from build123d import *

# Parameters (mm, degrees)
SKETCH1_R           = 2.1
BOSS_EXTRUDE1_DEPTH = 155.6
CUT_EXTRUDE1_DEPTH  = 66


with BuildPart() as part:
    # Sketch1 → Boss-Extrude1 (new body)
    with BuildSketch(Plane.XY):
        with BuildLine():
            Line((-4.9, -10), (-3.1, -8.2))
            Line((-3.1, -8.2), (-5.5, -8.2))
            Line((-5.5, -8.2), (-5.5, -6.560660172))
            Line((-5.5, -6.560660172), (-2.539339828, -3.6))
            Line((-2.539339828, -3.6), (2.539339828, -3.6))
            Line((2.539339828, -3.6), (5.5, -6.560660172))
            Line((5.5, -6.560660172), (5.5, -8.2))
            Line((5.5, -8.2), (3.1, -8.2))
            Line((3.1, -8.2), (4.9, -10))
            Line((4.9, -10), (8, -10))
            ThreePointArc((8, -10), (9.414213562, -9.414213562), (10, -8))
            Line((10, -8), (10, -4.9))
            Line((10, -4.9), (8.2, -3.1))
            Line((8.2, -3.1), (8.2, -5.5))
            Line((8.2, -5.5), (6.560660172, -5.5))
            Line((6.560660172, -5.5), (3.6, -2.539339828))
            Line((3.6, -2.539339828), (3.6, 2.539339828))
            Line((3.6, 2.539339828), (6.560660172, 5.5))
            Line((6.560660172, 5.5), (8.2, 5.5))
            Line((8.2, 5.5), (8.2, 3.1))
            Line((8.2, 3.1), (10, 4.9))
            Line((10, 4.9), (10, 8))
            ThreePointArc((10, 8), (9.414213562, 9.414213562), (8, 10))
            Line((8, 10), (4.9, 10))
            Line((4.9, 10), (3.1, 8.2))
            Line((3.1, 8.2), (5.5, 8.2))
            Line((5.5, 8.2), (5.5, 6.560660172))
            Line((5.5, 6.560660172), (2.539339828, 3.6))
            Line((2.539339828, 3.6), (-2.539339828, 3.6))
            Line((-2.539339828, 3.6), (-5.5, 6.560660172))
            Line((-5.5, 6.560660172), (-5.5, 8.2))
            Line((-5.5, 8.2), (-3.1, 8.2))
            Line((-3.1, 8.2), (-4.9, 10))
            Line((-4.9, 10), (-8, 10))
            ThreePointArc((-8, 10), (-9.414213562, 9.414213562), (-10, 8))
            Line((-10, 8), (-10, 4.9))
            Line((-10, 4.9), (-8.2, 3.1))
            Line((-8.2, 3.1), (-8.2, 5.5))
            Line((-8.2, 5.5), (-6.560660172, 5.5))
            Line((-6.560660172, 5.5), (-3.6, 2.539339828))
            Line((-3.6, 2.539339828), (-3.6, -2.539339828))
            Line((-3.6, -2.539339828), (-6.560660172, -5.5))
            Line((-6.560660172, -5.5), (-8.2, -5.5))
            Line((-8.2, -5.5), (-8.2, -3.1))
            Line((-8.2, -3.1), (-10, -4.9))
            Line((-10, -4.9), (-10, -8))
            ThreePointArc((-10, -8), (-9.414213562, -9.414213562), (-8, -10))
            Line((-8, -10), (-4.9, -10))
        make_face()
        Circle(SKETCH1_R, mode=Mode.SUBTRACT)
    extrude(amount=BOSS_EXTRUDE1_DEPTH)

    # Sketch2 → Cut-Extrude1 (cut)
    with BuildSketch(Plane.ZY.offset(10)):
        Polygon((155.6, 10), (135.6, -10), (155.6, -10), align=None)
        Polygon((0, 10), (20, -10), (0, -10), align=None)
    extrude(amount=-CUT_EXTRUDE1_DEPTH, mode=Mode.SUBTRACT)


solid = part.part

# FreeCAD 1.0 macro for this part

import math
import FreeCAD as App
import Part
import Sketcher

V = App.Vector

doc = App.newDocument("Part")
body = doc.addObject("PartDesign::Body", "Body")

# Sketch on XY plane
sketch1 = body.newObject("Sketcher::SketchObject", "Sketch")
sketch1.AttachmentSupport = (doc.getObject("XY_Plane"), [""])
sketch1.MapMode = "FlatFace"
sketch1.addGeometry([
    Part.LineSegment(V(-4.9, -10, 0), V(-3.1, -8.2, 0)),  # 0
    Part.LineSegment(V(-3.1, -8.2, 0), V(-5.5, -8.2, 0)),  # 1
    Part.LineSegment(V(-5.5, -8.2, 0), V(-5.5, -6.56066, 0)),  # 2
    Part.LineSegment(V(-5.5, -6.56066, 0), V(-2.53934, -3.6, 0)),  # 3
    Part.LineSegment(V(-2.53934, -3.6, 0), V(2.53934, -3.6, 0)),  # 4
    Part.LineSegment(V(2.53934, -3.6, 0), V(5.5, -6.56066, 0)),  # 5
    Part.LineSegment(V(5.5, -6.56066, 0), V(5.5, -8.2, 0)),  # 6
    Part.LineSegment(V(5.5, -8.2, 0), V(3.1, -8.2, 0)),  # 7
    Part.LineSegment(V(3.1, -8.2, 0), V(4.9, -10, 0)),  # 8
    Part.LineSegment(V(4.9, -10, 0), V(8, -10, 0)),  # 9
    Part.ArcOfCircle(Part.Circle(V(8, -8, 0), V(0, 0, 1), 2), math.radians(-90), math.radians(0)),  # 10
    Part.LineSegment(V(10, -8, 0), V(10, -4.9, 0)),  # 11
    Part.LineSegment(V(10, -4.9, 0), V(8.2, -3.1, 0)),  # 12
    Part.LineSegment(V(8.2, -3.1, 0), V(8.2, -5.5, 0)),  # 13
    Part.LineSegment(V(8.2, -5.5, 0), V(6.56066, -5.5, 0)),  # 14
    Part.LineSegment(V(6.56066, -5.5, 0), V(3.6, -2.53934, 0)),  # 15
    Part.LineSegment(V(3.6, -2.53934, 0), V(3.6, 2.53934, 0)),  # 16
    Part.LineSegment(V(3.6, 2.53934, 0), V(6.56066, 5.5, 0)),  # 17
    Part.LineSegment(V(6.56066, 5.5, 0), V(8.2, 5.5, 0)),  # 18
    Part.LineSegment(V(8.2, 5.5, 0), V(8.2, 3.1, 0)),  # 19
    Part.LineSegment(V(8.2, 3.1, 0), V(10, 4.9, 0)),  # 20
    Part.LineSegment(V(10, 4.9, 0), V(10, 8, 0)),  # 21
    Part.ArcOfCircle(Part.Circle(V(8, 8, 0), V(0, 0, 1), 2), math.radians(0), math.radians(90)),  # 22
    Part.LineSegment(V(8, 10, 0), V(4.9, 10, 0)),  # 23
    Part.LineSegment(V(4.9, 10, 0), V(3.1, 8.2, 0)),  # 24
    Part.LineSegment(V(3.1, 8.2, 0), V(5.5, 8.2, 0)),  # 25
    Part.LineSegment(V(5.5, 8.2, 0), V(5.5, 6.56066, 0)),  # 26
    Part.LineSegment(V(5.5, 6.56066, 0), V(2.53934, 3.6, 0)),  # 27
    Part.LineSegment(V(2.53934, 3.6, 0), V(-2.53934, 3.6, 0)),  # 28
    Part.LineSegment(V(-2.53934, 3.6, 0), V(-5.5, 6.56066, 0)),  # 29
    Part.LineSegment(V(-5.5, 6.56066, 0), V(-5.5, 8.2, 0)),  # 30
    Part.LineSegment(V(-5.5, 8.2, 0), V(-3.1, 8.2, 0)),  # 31
    Part.LineSegment(V(-3.1, 8.2, 0), V(-4.9, 10, 0)),  # 32
    Part.LineSegment(V(-4.9, 10, 0), V(-8, 10, 0)),  # 33
    Part.ArcOfCircle(Part.Circle(V(-8, 8, 0), V(0, 0, 1), 2), math.radians(90), math.radians(180)),  # 34
    Part.LineSegment(V(-10, 8, 0), V(-10, 4.9, 0)),  # 35
    Part.LineSegment(V(-10, 4.9, 0), V(-8.2, 3.1, 0)),  # 36
    Part.LineSegment(V(-8.2, 3.1, 0), V(-8.2, 5.5, 0)),  # 37
    Part.LineSegment(V(-8.2, 5.5, 0), V(-6.56066, 5.5, 0)),  # 38
    Part.LineSegment(V(-6.56066, 5.5, 0), V(-3.6, 2.53934, 0)),  # 39
    Part.LineSegment(V(-3.6, 2.53934, 0), V(-3.6, -2.53934, 0)),  # 40
    Part.LineSegment(V(-3.6, -2.53934, 0), V(-6.56066, -5.5, 0)),  # 41
    Part.LineSegment(V(-6.56066, -5.5, 0), V(-8.2, -5.5, 0)),  # 42
    Part.LineSegment(V(-8.2, -5.5, 0), V(-8.2, -3.1, 0)),  # 43
    Part.LineSegment(V(-8.2, -3.1, 0), V(-10, -4.9, 0)),  # 44
    Part.LineSegment(V(-10, -4.9, 0), V(-10, -8, 0)),  # 45
    Part.ArcOfCircle(Part.Circle(V(-8, -8, 0), V(0, 0, 1), 2), math.radians(-180), math.radians(-90)),  # 46
    Part.LineSegment(V(-8, -10, 0), V(-4.9, -10, 0)),  # 47
    Part.Circle(V(0, 0, 0), V(0, 0, 1), 2.1),  # 48
], False)
sketch1.addConstraint([
    Sketcher.Constraint("Coincident", 0, 2, 1, 1),
    Sketcher.Constraint("Coincident", 1, 2, 2, 1),
    Sketcher.Constraint("Coincident", 2, 2, 3, 1),
    Sketcher.Constraint("Coincident", 3, 2, 4, 1),
    Sketcher.Constraint("Coincident", 4, 2, 5, 1),
    Sketcher.Constraint("Coincident", 5, 2, 6, 1),
    Sketcher.Constraint("Coincident", 6, 2, 7, 1),
    Sketcher.Constraint("Coincident", 7, 2, 8, 1),
    Sketcher.Constraint("Coincident", 8, 2, 9, 1),
    Sketcher.Constraint("Tangent", 9, 2, 10, 1),
    Sketcher.Constraint("Tangent", 10, 2, 11, 1),
    Sketcher.Constraint("Coincident", 11, 2, 12, 1),
    Sketcher.Constraint("Coincident", 12, 2, 13, 1),
    Sketcher.Constraint("Coincident", 13, 2, 14, 1),
    Sketcher.Constraint("Coincident", 14, 2, 15, 1),
    Sketcher.Constraint("Coincident", 15, 2, 16, 1),
    Sketcher.Constraint("Coincident", 16, 2, 17, 1),
    Sketcher.Constraint("Coincident", 17, 2, 18, 1),
    Sketcher.Constraint("Coincident", 18, 2, 19, 1),
    Sketcher.Constraint("Coincident", 19, 2, 20, 1),
    Sketcher.Constraint("Coincident", 20, 2, 21, 1),
    Sketcher.Constraint("Tangent", 21, 2, 22, 1),
    Sketcher.Constraint("Tangent", 22, 2, 23, 1),
    Sketcher.Constraint("Coincident", 23, 2, 24, 1),
    Sketcher.Constraint("Coincident", 24, 2, 25, 1),
    Sketcher.Constraint("Coincident", 25, 2, 26, 1),
    Sketcher.Constraint("Coincident", 26, 2, 27, 1),
    Sketcher.Constraint("Coincident", 27, 2, 28, 1),
    Sketcher.Constraint("Coincident", 28, 2, 29, 1),
    Sketcher.Constraint("Coincident", 29, 2, 30, 1),
    Sketcher.Constraint("Coincident", 30, 2, 31, 1),
    Sketcher.Constraint("Coincident", 31, 2, 32, 1),
    Sketcher.Constraint("Coincident", 32, 2, 33, 1),
    Sketcher.Constraint("Tangent", 33, 2, 34, 1),
    Sketcher.Constraint("Tangent", 34, 2, 35, 1),
    Sketcher.Constraint("Coincident", 35, 2, 36, 1),
    Sketcher.Constraint("Coincident", 36, 2, 37, 1),
    Sketcher.Constraint("Coincident", 37, 2, 38, 1),
    Sketcher.Constraint("Coincident", 38, 2, 39, 1),
    Sketcher.Constraint("Coincident", 39, 2, 40, 1),
    Sketcher.Constraint("Coincident", 40, 2, 41, 1),
    Sketcher.Constraint("Coincident", 41, 2, 42, 1),
    Sketcher.Constraint("Coincident", 42, 2, 43, 1),
    Sketcher.Constraint("Coincident", 43, 2, 44, 1),
    Sketcher.Constraint("Coincident", 44, 2, 45, 1),
    Sketcher.Constraint("Tangent", 45, 2, 46, 1),
    Sketcher.Constraint("Tangent", 46, 2, 47, 1),
    Sketcher.Constraint("Coincident", 47, 2, 0, 1),
    Sketcher.Constraint("Horizontal", 1),
    Sketcher.Constraint("Vertical", 2),
    Sketcher.Constraint("Horizontal", 4),
    Sketcher.Constraint("Vertical", 6),
    Sketcher.Constraint("Horizontal", 7),
    Sketcher.Constraint("Horizontal", 9),
    Sketcher.Constraint("Vertical", 11),
    Sketcher.Constraint("Vertical", 13),
    Sketcher.Constraint("Horizontal", 14),
    Sketcher.Constraint("Vertical", 16),
    Sketcher.Constraint("Horizontal", 18),
    Sketcher.Constraint("Vertical", 19),
    Sketcher.Constraint("Vertical", 21),
    Sketcher.Constraint("Horizontal", 23),
    Sketcher.Constraint("Horizontal", 25),
    Sketcher.Constraint("Vertical", 26),
    Sketcher.Constraint("Horizontal", 28),
    Sketcher.Constraint("Vertical", 30),
    Sketcher.Constraint("Horizontal", 31),
    Sketcher.Constraint("Horizontal", 33),
    Sketcher.Constraint("Vertical", 35),
    Sketcher.Constraint("Vertical", 37),
    Sketcher.Constraint("Horizontal", 38),
    Sketcher.Constraint("Vertical", 40),
    Sketcher.Constraint("Horizontal", 42),
    Sketcher.Constraint("Vertical", 43),
    Sketcher.Constraint("Vertical", 45),
    Sketcher.Constraint("Horizontal", 47),
    Sketcher.Constraint("Coincident", 48, 3, -1, 1),
    Sketcher.Constraint("Equal", 10, 22),
    Sketcher.Constraint("Equal", 22, 34),
    Sketcher.Constraint("Equal", 34, 46),
    Sketcher.Constraint("Symmetric", 10, 3, 34, 3, -1, 1),
    Sketcher.Constraint("Symmetric", 22, 3, 46, 3, -1, 1),
    Sketcher.Constraint("Symmetric", 0, 2, 24, 2, -1, 1),
    Sketcher.Constraint("Symmetric", 2, 2, 26, 2, -1, 1),
    Sketcher.Constraint("Symmetric", 3, 2, 27, 2, -1, 1),
    Sketcher.Constraint("Symmetric", 5, 2, 29, 2, -1, 1),
    Sketcher.Constraint("Symmetric", 7, 2, 31, 2, -1, 1),
    Sketcher.Constraint("Symmetric", 12, 2, 36, 2, -1, 1),
    Sketcher.Constraint("Symmetric", 14, 2, 38, 2, -1, 1),
    Sketcher.Constraint("Symmetric", 15, 2, 39, 2, -1, 1),
    Sketcher.Constraint("Symmetric", 17, 2, 41, 2, -1, 1),
    Sketcher.Constraint("Symmetric", 19, 2, 43, 2, -1, 1),
    Sketcher.Constraint("Symmetric", 22, 3, 34, 3, -2),
    Sketcher.Constraint("Symmetric", 2, 2, 5, 2, -2),
    Sketcher.Constraint("Symmetric", 0, 2, 7, 2, -2),
    Sketcher.Constraint("Symmetric", 19, 2, 36, 2, -2),
    Sketcher.Constraint("Symmetric", 17, 2, 38, 2, -2),
    Sketcher.Constraint("Parallel", 0, 3),
    Sketcher.Constraint("Perpendicular", 3, 5),
    Sketcher.Constraint("Parallel", 5, 8),
    Sketcher.Constraint("Parallel", 8, 12),
    Sketcher.Constraint("Parallel", 12, 15),
    Sketcher.Constraint("Perpendicular", 15, 17),
    Sketcher.Constraint("Parallel", 17, 20),
    Sketcher.Constraint("Parallel", 20, 24),
    Sketcher.Constraint("Perpendicular", 27, 29),
    Sketcher.Constraint("Parallel", 29, 32),
    Sketcher.Constraint("Parallel", 32, 36),
    Sketcher.Constraint("Perpendicular", 39, 41),
    Sketcher.Constraint("Parallel", 41, 44),
    Sketcher.Constraint("Horizontal", 20, 2, 35, 2),
    Sketcher.Constraint("Equal", 42, 2),
    Sketcher.Constraint("Equal", 47, 11),
    Sketcher.Constraint("Equal", 31, 13),
    Sketcher.Constraint("Equal", 28, 16),
    Sketcher.Constraint("Equal", 8, 12),
    Sketcher.Constraint("Equal", 5, 15),
    Sketcher.Constraint("Radius", 10, 2.0),
    Sketcher.Constraint("Diameter", 48, 4.2),
    Sketcher.Constraint("DistanceX", 1, 2, 1, 1, 2.4),
    Sketcher.Constraint("DistanceX", 9, 1, 9, 2, 3.1),
    Sketcher.Constraint("DistanceX", -1, 1, 10, 3, 8.0),
    Sketcher.Constraint("DistanceX", 0, 2, -1, 1, 3.1),
    Sketcher.Constraint("DistanceY", 3, 2, -1, 1, 3.6),
    Sketcher.Constraint("DistanceX", 4, 1, 4, 2, 5.07868),
])
pad1 = body.newObject("PartDesign::Pad", "Pad")
pad1.Profile = sketch1
pad1.Length = 155.6

# Sketch on YZ plane
sketch2 = body.newObject("Sketcher::SketchObject", "Sketch001")
sketch2.AttachmentSupport = (doc.getObject("YZ_Plane"), [""])
sketch2.MapMode = "FlatFace"
sketch2.AttachmentOffset = App.Placement(V(0, 0, -10), App.Rotation())
sketch2.addGeometry([
    Part.LineSegment(V(10, 155.6, 0), V(-10, 135.6, 0)),  # 0
    Part.LineSegment(V(-10, 135.6, 0), V(-10, 155.6, 0)),  # 1
    Part.LineSegment(V(-10, 155.6, 0), V(10, 155.6, 0)),  # 2
    Part.LineSegment(V(-10, 20, 0), V(10, 0, 0)),  # 3
    Part.LineSegment(V(10, 0, 0), V(-10, 0, 0)),  # 4
    Part.LineSegment(V(-10, 0, 0), V(-10, 20, 0)),  # 5
], False)
sketch2.addConstraint([
    Sketcher.Constraint("Coincident", 0, 2, 1, 1),
    Sketcher.Constraint("Coincident", 1, 2, 2, 1),
    Sketcher.Constraint("Coincident", 2, 2, 0, 1),
    Sketcher.Constraint("Coincident", 3, 2, 4, 1),
    Sketcher.Constraint("Coincident", 4, 2, 5, 1),
    Sketcher.Constraint("Coincident", 5, 2, 3, 1),
    Sketcher.Constraint("Vertical", 1),
    Sketcher.Constraint("Horizontal", 2),
    Sketcher.Constraint("Horizontal", 4),
    Sketcher.Constraint("Vertical", 5),
    Sketcher.Constraint("Symmetric", 3, 2, 4, 2, -1, 1),
    Sketcher.Constraint("Perpendicular", 0, 3),
    Sketcher.Constraint("Vertical", 2, 2, 3, 2),
    Sketcher.Constraint("Vertical", 1, 2, 4, 2),
    Sketcher.Constraint("Equal", 4, 1),
    Sketcher.Constraint("DistanceX", 2, 1, 2, 2, 20.0),
    Sketcher.Constraint("DistanceY", -1, 1, 0, 2, 135.6),
])
pocket1 = body.newObject("PartDesign::Pocket", "Pocket")
pocket1.Profile = sketch2
pocket1.Length = 66
pocket1.Reversed = True

doc.recompute()
